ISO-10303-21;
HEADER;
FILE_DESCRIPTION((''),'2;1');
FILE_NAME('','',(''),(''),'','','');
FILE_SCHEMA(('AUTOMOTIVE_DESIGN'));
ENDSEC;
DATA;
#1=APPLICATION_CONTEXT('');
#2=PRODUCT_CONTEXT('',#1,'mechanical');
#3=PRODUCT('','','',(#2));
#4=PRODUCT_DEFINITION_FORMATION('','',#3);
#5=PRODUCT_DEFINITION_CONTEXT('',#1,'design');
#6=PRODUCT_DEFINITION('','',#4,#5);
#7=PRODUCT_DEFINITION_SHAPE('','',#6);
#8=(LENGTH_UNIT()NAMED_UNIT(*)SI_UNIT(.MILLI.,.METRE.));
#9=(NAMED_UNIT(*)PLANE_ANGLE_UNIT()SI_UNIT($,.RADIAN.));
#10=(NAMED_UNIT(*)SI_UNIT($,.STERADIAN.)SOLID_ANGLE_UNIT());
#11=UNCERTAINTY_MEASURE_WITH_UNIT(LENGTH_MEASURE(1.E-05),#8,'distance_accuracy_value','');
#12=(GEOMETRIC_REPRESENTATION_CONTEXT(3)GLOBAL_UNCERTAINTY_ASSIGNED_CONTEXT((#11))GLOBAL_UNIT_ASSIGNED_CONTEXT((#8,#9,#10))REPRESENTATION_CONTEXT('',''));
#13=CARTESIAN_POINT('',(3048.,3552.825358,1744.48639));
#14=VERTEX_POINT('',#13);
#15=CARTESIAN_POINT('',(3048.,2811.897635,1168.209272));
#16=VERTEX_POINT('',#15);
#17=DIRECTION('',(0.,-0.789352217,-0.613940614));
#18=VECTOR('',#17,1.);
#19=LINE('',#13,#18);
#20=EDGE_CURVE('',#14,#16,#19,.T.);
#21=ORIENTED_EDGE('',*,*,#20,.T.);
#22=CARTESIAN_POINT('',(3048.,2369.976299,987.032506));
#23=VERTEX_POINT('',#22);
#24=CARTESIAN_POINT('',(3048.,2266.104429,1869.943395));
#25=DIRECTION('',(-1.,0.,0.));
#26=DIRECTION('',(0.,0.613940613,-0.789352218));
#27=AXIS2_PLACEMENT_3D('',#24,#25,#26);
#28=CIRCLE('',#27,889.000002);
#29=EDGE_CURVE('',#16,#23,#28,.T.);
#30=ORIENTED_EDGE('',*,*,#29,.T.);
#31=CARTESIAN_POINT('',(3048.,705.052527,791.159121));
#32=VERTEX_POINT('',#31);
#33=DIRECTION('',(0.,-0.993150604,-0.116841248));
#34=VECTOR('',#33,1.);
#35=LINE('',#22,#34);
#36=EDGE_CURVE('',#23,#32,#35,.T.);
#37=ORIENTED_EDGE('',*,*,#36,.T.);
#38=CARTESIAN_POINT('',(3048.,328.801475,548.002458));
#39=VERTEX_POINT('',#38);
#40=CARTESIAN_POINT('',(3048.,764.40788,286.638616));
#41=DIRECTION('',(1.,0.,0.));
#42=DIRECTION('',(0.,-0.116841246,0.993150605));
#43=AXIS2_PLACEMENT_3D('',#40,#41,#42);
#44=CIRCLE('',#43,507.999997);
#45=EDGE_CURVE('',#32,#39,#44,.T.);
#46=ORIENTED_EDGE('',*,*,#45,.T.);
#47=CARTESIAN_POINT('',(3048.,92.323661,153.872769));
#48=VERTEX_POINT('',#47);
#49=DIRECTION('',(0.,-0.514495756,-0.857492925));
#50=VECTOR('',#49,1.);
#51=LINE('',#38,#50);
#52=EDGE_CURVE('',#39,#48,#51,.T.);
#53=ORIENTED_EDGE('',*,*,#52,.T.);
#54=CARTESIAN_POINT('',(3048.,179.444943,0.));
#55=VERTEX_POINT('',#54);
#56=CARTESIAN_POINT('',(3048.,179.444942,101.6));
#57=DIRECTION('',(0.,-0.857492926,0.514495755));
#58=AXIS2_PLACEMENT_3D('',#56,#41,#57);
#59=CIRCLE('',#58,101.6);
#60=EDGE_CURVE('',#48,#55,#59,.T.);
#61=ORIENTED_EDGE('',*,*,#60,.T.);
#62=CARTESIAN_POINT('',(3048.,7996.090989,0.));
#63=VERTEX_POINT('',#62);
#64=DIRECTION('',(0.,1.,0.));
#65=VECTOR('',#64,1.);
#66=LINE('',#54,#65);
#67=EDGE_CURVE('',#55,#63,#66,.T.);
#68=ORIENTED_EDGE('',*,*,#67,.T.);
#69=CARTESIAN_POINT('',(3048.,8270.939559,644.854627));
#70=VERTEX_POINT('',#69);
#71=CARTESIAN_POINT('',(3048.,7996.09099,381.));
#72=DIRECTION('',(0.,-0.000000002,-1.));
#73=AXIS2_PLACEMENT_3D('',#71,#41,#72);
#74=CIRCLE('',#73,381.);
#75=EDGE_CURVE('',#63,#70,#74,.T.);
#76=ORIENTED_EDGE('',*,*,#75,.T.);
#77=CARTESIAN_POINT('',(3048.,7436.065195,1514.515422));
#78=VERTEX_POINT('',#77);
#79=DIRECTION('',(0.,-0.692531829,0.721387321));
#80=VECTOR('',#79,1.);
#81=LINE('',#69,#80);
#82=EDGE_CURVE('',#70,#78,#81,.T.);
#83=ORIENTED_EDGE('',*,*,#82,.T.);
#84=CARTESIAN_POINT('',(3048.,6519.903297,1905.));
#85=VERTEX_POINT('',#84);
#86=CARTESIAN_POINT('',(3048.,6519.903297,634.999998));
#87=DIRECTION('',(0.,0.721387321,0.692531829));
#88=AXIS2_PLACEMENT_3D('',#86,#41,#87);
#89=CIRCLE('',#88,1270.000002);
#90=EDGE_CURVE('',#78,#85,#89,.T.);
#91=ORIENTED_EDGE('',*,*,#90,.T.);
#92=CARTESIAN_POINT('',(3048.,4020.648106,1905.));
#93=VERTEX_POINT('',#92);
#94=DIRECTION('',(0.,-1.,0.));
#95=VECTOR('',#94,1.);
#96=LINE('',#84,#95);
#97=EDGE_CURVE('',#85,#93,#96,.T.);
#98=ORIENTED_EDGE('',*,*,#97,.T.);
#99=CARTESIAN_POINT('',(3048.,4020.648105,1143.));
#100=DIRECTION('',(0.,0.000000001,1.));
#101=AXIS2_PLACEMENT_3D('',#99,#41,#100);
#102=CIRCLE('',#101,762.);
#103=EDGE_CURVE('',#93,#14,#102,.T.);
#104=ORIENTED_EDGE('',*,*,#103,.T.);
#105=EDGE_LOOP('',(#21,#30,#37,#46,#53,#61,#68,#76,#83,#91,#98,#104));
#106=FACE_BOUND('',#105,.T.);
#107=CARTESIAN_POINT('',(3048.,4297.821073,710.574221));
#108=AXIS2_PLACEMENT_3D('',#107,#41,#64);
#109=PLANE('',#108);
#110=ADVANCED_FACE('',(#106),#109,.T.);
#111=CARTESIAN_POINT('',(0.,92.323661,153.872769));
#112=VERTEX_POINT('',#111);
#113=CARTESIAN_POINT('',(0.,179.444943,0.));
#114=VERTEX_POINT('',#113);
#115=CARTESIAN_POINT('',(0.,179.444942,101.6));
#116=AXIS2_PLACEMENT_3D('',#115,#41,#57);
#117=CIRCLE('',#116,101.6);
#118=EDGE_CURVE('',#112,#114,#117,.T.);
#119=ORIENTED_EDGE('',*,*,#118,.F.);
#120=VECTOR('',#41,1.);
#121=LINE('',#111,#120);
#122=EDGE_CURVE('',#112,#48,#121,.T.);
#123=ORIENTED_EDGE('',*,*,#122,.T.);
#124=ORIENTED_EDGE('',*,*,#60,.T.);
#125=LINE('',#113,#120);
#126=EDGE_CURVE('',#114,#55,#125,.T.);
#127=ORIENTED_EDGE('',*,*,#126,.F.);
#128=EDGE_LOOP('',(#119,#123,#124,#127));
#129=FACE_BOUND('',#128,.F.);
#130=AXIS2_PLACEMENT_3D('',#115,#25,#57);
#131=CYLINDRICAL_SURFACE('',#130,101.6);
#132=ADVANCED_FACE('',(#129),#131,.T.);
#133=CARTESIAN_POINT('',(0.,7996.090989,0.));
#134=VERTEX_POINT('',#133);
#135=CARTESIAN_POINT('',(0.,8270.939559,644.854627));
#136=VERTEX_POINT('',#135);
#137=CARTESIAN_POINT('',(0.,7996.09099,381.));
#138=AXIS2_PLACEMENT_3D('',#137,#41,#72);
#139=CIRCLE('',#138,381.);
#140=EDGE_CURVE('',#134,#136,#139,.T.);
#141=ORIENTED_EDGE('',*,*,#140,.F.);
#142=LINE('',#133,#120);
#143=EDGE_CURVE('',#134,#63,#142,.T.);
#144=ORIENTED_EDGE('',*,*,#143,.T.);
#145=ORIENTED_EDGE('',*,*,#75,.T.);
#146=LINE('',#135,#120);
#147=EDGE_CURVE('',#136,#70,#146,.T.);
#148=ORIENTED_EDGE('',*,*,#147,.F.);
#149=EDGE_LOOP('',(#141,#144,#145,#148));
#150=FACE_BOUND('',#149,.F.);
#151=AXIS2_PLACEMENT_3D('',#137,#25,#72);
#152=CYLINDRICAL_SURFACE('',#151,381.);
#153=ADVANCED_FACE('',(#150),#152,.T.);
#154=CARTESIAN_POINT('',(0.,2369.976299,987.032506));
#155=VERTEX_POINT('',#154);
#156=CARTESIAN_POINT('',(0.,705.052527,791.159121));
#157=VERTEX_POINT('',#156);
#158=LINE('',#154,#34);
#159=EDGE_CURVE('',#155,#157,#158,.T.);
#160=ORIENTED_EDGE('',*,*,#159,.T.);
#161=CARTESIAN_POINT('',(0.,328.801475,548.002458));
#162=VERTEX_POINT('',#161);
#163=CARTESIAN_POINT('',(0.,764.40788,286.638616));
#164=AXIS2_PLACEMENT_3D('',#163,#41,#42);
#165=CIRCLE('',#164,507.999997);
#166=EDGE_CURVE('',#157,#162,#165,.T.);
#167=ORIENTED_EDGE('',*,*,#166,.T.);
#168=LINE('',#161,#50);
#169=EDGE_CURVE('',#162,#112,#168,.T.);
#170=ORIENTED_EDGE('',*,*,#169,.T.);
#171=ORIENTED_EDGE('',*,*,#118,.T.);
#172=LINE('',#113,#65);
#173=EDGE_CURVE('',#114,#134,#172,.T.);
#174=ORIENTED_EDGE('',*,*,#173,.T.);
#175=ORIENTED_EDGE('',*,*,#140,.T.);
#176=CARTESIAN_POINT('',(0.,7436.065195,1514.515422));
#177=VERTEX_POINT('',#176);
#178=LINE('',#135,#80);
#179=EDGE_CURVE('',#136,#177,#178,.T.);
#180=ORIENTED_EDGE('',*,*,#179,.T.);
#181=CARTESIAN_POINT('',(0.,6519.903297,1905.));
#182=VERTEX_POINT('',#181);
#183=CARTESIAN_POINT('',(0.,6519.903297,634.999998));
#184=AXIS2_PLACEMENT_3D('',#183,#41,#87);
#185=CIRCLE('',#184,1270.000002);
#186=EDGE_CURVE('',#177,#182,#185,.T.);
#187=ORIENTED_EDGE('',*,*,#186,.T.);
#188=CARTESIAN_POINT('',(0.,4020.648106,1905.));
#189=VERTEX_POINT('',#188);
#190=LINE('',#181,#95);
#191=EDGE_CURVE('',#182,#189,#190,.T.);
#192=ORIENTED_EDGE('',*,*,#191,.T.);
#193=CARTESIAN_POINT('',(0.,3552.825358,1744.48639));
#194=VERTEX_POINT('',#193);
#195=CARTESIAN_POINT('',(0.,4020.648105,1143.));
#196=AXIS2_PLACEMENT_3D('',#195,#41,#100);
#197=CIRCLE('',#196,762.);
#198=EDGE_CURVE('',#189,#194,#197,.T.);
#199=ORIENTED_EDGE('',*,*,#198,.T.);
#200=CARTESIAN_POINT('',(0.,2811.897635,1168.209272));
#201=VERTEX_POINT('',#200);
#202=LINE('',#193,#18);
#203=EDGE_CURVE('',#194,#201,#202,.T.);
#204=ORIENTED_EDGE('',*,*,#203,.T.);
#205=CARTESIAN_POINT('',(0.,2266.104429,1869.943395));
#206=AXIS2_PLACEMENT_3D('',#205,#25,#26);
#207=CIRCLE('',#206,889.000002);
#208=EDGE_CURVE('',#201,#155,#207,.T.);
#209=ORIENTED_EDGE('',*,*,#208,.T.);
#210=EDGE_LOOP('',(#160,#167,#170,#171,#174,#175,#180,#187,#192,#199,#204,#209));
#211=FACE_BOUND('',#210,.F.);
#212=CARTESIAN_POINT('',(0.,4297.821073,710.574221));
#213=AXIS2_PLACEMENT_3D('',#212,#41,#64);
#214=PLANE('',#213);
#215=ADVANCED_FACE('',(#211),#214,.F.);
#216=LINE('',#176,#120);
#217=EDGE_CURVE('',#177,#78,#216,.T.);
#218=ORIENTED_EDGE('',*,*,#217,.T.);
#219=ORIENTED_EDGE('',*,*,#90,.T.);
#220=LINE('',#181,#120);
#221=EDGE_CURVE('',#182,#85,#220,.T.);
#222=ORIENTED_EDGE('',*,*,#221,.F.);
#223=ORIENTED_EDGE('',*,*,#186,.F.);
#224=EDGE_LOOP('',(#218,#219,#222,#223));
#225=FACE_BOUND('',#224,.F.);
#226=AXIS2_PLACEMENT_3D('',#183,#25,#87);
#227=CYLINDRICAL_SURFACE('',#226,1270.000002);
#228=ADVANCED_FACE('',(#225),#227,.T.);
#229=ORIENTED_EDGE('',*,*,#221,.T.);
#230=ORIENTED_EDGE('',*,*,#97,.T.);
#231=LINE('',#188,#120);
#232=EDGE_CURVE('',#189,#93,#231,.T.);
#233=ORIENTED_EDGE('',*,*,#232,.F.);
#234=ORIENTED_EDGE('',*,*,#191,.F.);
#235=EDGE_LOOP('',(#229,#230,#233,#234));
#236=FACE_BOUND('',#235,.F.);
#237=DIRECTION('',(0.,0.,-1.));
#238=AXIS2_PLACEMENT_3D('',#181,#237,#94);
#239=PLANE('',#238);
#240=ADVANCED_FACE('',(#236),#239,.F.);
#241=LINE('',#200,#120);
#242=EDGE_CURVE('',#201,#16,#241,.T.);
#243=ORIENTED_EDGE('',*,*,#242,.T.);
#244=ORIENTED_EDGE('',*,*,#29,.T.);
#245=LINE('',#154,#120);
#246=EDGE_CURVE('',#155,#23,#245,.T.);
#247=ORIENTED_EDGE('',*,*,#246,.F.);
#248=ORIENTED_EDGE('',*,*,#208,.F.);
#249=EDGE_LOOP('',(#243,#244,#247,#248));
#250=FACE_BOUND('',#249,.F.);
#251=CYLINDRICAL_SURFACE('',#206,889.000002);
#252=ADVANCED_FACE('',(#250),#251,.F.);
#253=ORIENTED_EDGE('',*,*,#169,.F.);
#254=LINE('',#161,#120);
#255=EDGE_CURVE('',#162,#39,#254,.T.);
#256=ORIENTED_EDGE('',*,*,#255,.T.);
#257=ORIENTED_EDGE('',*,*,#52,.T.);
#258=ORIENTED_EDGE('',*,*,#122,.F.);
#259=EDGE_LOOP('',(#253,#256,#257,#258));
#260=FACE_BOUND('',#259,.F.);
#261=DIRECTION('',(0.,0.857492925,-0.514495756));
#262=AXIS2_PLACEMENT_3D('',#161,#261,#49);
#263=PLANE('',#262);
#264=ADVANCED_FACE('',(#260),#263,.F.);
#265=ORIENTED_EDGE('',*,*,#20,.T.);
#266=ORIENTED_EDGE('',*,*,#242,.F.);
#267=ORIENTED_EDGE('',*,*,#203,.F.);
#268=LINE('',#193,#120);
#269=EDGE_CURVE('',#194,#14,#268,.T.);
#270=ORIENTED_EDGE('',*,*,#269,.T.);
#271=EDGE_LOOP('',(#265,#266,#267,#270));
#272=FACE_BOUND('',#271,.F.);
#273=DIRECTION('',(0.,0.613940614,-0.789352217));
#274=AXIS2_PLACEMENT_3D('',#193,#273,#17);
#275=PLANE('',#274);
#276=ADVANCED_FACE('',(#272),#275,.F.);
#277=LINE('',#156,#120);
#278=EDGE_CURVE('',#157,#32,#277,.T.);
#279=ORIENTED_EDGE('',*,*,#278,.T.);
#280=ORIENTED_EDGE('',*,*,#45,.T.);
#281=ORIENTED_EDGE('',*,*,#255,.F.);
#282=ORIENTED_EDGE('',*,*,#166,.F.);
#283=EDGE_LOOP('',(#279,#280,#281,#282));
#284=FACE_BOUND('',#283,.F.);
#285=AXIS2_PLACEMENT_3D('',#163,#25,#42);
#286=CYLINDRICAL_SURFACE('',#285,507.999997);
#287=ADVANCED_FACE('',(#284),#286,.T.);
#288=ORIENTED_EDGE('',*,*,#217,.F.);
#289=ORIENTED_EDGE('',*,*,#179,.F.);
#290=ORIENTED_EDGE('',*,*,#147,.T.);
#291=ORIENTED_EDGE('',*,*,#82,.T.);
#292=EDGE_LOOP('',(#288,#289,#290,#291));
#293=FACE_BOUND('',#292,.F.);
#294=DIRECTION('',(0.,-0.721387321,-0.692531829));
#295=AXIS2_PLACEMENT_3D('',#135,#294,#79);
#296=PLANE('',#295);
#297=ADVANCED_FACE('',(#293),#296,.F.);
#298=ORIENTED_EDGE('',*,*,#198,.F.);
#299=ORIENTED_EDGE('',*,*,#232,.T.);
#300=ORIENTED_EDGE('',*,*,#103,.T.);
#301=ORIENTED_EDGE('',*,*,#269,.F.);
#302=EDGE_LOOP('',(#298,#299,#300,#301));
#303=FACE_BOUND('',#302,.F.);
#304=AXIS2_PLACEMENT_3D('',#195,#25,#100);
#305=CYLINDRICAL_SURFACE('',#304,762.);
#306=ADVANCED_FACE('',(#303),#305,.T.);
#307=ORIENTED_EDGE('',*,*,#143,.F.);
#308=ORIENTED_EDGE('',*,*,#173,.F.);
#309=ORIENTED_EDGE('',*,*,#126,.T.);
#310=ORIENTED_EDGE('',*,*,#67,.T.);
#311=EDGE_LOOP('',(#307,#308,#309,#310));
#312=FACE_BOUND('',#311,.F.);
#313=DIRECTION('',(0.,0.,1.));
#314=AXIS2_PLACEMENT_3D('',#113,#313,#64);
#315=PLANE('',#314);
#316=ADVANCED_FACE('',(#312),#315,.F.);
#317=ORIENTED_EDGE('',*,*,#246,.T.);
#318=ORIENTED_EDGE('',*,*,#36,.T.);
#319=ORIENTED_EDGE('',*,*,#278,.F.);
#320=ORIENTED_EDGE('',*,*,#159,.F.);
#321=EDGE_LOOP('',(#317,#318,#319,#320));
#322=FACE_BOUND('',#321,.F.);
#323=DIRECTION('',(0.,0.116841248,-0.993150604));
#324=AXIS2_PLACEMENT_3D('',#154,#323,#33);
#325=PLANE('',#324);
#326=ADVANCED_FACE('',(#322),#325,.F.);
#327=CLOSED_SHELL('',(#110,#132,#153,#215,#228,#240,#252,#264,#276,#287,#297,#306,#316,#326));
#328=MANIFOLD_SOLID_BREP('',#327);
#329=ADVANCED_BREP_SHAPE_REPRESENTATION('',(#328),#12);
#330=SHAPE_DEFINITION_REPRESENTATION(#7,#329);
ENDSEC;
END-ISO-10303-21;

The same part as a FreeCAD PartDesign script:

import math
import FreeCAD as App
import Part
import Sketcher
Q = App.Units.Quantity

doc = App.newDocument("Part")
body = doc.addObject("PartDesign::Body", "Body")

sketch1 = body.newObject("Sketcher::SketchObject", "Sketch")
sketch1.AttachmentSupport = (doc.getObject("YZ_Plane"), [""])
sketch1.MapMode = "FlatFace"
sketch1.addGeometry(Part.ArcOfCircle(Part.Circle(App.Vector(179, 102, 0), App.Vector(0, 0, 1), 102), math.radians(149), math.radians(270)), False)
sketch1.addGeometry(Part.LineSegment(App.Vector(179, 0, 0), App.Vector(7996, 0, 0)), False)
sketch1.addGeometry(Part.ArcOfCircle(Part.Circle(App.Vector(7996, 381, 0), App.Vector(0, 0, 1), 381), math.radians(-90), math.radians(44)), False)
sketch1.addGeometry(Part.LineSegment(App.Vector(8271, 645, 0), App.Vector(7436, 1515, 0)), False)
sketch1.addGeometry(Part.ArcOfCircle(Part.Circle(App.Vector(6520, 635, 0), App.Vector(0, 0, 1), 1270), math.radians(44), math.radians(90)), False)
sketch1.addGeometry(Part.LineSegment(App.Vector(6520, 1905, 0), App.Vector(4021, 1905, 0)), False)
sketch1.addGeometry(Part.ArcOfCircle(Part.Circle(App.Vector(4021, 1143, 0), App.Vector(0, 0, 1), 762), math.radians(90), math.radians(128)), False)
sketch1.addGeometry(Part.LineSegment(App.Vector(3553, 1744, 0), App.Vector(2812, 1168, 0)), False)
sketch1.addGeometry(Part.ArcOfCircle(Part.Circle(App.Vector(2266, 1870, 0), App.Vector(0, 0, 1), 889), math.radians(-83), math.radians(-52)), False)
sketch1.addGeometry(Part.LineSegment(App.Vector(2370, 987, 0), App.Vector(705, 791, 0)), False)
sketch1.addGeometry(Part.ArcOfCircle(Part.Circle(App.Vector(764, 287, 0), App.Vector(0, 0, 1), 508), math.radians(97), math.radians(149)), False)
sketch1.addGeometry(Part.LineSegment(App.Vector(329, 548, 0), App.Vector(92, 154, 0)), False)
sketch1.addConstraint(Sketcher.Constraint("Tangent", 0, 2, 1, 1))
sketch1.addConstraint(Sketcher.Constraint("Tangent", 1, 2, 2, 1))
sketch1.addConstraint(Sketcher.Constraint("Tangent", 2, 2, 3, 1))
sketch1.addConstraint(Sketcher.Constraint("Coincident", 3, 2, 4, 1))
sketch1.addConstraint(Sketcher.Constraint("Coincident", 4, 2, 5, 1))
sketch1.addConstraint(Sketcher.Constraint("Coincident", 5, 2, 6, 1))
sketch1.addConstraint(Sketcher.Constraint("Tangent", 6, 2, 7, 1))
sketch1.addConstraint(Sketcher.Constraint("Coincident", 7, 2, 8, 2))
sketch1.addConstraint(Sketcher.Constraint("Coincident", 8, 1, 9, 1))
sketch1.addConstraint(Sketcher.Constraint("Tangent", 9, 2, 10, 1))
sketch1.addConstraint(Sketcher.Constraint("Tangent", 10, 2, 11, 1))
sketch1.addConstraint(Sketcher.Constraint("Tangent", 11, 2, 0, 1))
sketch1.addConstraint(Sketcher.Constraint("Horizontal", 1))
sketch1.addConstraint(Sketcher.Constraint("Horizontal", 5))
sketch1.addConstraint(Sketcher.Constraint("PointOnObject", 0, 2, -1))
sketch1.addConstraint(Sketcher.Constraint("Vertical", 6, 3, 5, 2))
sketch1.addConstraint(Sketcher.Constraint("Radius", 0, Q("4 in")))
sketch1.addConstraint(Sketcher.Constraint("Radius", 2, Q("15 in")))
sketch1.addConstraint(Sketcher.Constraint("Radius", 4, Q("50.0000001 in")))
sketch1.addConstraint(Sketcher.Constraint("Radius", 6, Q("30 in")))
sketch1.addConstraint(Sketcher.Constraint("Radius", 8, Q("35.0000001 in")))
sketch1.addConstraint(Sketcher.Constraint("Radius", 10, Q("19.9999999 in")))
sketch1.addConstraint(Sketcher.Constraint("DistanceY", -1, 1, 4, 3, Q("24.9999999 in")))
sketch1.addConstraint(Sketcher.Constraint("DistanceX", 5, 2, 5, 1, Q("2499.255191 mm")))
sketch1.addConstraint(Sketcher.Constraint("DistanceX", 4, 3, 3, 2, Q("916.161898 mm")))
sketch1.addConstraint(Sketcher.Constraint("DistanceX", 9, 2, 8, 3, Q("1561.051902 mm")))
sketch1.addConstraint(Sketcher.Constraint("Distance", 3, Q("1205.539341 mm")))
sketch1.addConstraint(Sketcher.Constraint("Distance", 7, Q("938.652868 mm")))
sketch1.addConstraint(Sketcher.Constraint("Distance", 9, Q("1676.406141 mm")))
sketch1.addConstraint(Sketcher.Constraint("Distance", 11, Q("459.630252 mm")))
sketch1.addConstraint(Sketcher.Constraint("DistanceX", 1, 1, 1, 2, Q("7816.646046 mm")))
sketch1.addConstraint(Sketcher.Constraint("DistanceX", -1, 1, 2, 3, Q("7996.09099 mm")))
sketch1.addConstraint(Sketcher.Constraint("DistanceX", -1, 1, 8, 3, Q("2266.104429 mm")))
sketch1.addConstraint(Sketcher.Constraint("DistanceX", -1, 1, 10, 3, Q("764.40788 mm")))
sketch1.addConstraint(Sketcher.Constraint("DistanceY", -1, 1, 7, 2, Q("1168.209272 mm")))
pad1 = body.newObject("PartDesign::Pad", "Pad")
pad1.Profile = sketch1
pad1.Length = Q("120 in")

doc.recompute()
